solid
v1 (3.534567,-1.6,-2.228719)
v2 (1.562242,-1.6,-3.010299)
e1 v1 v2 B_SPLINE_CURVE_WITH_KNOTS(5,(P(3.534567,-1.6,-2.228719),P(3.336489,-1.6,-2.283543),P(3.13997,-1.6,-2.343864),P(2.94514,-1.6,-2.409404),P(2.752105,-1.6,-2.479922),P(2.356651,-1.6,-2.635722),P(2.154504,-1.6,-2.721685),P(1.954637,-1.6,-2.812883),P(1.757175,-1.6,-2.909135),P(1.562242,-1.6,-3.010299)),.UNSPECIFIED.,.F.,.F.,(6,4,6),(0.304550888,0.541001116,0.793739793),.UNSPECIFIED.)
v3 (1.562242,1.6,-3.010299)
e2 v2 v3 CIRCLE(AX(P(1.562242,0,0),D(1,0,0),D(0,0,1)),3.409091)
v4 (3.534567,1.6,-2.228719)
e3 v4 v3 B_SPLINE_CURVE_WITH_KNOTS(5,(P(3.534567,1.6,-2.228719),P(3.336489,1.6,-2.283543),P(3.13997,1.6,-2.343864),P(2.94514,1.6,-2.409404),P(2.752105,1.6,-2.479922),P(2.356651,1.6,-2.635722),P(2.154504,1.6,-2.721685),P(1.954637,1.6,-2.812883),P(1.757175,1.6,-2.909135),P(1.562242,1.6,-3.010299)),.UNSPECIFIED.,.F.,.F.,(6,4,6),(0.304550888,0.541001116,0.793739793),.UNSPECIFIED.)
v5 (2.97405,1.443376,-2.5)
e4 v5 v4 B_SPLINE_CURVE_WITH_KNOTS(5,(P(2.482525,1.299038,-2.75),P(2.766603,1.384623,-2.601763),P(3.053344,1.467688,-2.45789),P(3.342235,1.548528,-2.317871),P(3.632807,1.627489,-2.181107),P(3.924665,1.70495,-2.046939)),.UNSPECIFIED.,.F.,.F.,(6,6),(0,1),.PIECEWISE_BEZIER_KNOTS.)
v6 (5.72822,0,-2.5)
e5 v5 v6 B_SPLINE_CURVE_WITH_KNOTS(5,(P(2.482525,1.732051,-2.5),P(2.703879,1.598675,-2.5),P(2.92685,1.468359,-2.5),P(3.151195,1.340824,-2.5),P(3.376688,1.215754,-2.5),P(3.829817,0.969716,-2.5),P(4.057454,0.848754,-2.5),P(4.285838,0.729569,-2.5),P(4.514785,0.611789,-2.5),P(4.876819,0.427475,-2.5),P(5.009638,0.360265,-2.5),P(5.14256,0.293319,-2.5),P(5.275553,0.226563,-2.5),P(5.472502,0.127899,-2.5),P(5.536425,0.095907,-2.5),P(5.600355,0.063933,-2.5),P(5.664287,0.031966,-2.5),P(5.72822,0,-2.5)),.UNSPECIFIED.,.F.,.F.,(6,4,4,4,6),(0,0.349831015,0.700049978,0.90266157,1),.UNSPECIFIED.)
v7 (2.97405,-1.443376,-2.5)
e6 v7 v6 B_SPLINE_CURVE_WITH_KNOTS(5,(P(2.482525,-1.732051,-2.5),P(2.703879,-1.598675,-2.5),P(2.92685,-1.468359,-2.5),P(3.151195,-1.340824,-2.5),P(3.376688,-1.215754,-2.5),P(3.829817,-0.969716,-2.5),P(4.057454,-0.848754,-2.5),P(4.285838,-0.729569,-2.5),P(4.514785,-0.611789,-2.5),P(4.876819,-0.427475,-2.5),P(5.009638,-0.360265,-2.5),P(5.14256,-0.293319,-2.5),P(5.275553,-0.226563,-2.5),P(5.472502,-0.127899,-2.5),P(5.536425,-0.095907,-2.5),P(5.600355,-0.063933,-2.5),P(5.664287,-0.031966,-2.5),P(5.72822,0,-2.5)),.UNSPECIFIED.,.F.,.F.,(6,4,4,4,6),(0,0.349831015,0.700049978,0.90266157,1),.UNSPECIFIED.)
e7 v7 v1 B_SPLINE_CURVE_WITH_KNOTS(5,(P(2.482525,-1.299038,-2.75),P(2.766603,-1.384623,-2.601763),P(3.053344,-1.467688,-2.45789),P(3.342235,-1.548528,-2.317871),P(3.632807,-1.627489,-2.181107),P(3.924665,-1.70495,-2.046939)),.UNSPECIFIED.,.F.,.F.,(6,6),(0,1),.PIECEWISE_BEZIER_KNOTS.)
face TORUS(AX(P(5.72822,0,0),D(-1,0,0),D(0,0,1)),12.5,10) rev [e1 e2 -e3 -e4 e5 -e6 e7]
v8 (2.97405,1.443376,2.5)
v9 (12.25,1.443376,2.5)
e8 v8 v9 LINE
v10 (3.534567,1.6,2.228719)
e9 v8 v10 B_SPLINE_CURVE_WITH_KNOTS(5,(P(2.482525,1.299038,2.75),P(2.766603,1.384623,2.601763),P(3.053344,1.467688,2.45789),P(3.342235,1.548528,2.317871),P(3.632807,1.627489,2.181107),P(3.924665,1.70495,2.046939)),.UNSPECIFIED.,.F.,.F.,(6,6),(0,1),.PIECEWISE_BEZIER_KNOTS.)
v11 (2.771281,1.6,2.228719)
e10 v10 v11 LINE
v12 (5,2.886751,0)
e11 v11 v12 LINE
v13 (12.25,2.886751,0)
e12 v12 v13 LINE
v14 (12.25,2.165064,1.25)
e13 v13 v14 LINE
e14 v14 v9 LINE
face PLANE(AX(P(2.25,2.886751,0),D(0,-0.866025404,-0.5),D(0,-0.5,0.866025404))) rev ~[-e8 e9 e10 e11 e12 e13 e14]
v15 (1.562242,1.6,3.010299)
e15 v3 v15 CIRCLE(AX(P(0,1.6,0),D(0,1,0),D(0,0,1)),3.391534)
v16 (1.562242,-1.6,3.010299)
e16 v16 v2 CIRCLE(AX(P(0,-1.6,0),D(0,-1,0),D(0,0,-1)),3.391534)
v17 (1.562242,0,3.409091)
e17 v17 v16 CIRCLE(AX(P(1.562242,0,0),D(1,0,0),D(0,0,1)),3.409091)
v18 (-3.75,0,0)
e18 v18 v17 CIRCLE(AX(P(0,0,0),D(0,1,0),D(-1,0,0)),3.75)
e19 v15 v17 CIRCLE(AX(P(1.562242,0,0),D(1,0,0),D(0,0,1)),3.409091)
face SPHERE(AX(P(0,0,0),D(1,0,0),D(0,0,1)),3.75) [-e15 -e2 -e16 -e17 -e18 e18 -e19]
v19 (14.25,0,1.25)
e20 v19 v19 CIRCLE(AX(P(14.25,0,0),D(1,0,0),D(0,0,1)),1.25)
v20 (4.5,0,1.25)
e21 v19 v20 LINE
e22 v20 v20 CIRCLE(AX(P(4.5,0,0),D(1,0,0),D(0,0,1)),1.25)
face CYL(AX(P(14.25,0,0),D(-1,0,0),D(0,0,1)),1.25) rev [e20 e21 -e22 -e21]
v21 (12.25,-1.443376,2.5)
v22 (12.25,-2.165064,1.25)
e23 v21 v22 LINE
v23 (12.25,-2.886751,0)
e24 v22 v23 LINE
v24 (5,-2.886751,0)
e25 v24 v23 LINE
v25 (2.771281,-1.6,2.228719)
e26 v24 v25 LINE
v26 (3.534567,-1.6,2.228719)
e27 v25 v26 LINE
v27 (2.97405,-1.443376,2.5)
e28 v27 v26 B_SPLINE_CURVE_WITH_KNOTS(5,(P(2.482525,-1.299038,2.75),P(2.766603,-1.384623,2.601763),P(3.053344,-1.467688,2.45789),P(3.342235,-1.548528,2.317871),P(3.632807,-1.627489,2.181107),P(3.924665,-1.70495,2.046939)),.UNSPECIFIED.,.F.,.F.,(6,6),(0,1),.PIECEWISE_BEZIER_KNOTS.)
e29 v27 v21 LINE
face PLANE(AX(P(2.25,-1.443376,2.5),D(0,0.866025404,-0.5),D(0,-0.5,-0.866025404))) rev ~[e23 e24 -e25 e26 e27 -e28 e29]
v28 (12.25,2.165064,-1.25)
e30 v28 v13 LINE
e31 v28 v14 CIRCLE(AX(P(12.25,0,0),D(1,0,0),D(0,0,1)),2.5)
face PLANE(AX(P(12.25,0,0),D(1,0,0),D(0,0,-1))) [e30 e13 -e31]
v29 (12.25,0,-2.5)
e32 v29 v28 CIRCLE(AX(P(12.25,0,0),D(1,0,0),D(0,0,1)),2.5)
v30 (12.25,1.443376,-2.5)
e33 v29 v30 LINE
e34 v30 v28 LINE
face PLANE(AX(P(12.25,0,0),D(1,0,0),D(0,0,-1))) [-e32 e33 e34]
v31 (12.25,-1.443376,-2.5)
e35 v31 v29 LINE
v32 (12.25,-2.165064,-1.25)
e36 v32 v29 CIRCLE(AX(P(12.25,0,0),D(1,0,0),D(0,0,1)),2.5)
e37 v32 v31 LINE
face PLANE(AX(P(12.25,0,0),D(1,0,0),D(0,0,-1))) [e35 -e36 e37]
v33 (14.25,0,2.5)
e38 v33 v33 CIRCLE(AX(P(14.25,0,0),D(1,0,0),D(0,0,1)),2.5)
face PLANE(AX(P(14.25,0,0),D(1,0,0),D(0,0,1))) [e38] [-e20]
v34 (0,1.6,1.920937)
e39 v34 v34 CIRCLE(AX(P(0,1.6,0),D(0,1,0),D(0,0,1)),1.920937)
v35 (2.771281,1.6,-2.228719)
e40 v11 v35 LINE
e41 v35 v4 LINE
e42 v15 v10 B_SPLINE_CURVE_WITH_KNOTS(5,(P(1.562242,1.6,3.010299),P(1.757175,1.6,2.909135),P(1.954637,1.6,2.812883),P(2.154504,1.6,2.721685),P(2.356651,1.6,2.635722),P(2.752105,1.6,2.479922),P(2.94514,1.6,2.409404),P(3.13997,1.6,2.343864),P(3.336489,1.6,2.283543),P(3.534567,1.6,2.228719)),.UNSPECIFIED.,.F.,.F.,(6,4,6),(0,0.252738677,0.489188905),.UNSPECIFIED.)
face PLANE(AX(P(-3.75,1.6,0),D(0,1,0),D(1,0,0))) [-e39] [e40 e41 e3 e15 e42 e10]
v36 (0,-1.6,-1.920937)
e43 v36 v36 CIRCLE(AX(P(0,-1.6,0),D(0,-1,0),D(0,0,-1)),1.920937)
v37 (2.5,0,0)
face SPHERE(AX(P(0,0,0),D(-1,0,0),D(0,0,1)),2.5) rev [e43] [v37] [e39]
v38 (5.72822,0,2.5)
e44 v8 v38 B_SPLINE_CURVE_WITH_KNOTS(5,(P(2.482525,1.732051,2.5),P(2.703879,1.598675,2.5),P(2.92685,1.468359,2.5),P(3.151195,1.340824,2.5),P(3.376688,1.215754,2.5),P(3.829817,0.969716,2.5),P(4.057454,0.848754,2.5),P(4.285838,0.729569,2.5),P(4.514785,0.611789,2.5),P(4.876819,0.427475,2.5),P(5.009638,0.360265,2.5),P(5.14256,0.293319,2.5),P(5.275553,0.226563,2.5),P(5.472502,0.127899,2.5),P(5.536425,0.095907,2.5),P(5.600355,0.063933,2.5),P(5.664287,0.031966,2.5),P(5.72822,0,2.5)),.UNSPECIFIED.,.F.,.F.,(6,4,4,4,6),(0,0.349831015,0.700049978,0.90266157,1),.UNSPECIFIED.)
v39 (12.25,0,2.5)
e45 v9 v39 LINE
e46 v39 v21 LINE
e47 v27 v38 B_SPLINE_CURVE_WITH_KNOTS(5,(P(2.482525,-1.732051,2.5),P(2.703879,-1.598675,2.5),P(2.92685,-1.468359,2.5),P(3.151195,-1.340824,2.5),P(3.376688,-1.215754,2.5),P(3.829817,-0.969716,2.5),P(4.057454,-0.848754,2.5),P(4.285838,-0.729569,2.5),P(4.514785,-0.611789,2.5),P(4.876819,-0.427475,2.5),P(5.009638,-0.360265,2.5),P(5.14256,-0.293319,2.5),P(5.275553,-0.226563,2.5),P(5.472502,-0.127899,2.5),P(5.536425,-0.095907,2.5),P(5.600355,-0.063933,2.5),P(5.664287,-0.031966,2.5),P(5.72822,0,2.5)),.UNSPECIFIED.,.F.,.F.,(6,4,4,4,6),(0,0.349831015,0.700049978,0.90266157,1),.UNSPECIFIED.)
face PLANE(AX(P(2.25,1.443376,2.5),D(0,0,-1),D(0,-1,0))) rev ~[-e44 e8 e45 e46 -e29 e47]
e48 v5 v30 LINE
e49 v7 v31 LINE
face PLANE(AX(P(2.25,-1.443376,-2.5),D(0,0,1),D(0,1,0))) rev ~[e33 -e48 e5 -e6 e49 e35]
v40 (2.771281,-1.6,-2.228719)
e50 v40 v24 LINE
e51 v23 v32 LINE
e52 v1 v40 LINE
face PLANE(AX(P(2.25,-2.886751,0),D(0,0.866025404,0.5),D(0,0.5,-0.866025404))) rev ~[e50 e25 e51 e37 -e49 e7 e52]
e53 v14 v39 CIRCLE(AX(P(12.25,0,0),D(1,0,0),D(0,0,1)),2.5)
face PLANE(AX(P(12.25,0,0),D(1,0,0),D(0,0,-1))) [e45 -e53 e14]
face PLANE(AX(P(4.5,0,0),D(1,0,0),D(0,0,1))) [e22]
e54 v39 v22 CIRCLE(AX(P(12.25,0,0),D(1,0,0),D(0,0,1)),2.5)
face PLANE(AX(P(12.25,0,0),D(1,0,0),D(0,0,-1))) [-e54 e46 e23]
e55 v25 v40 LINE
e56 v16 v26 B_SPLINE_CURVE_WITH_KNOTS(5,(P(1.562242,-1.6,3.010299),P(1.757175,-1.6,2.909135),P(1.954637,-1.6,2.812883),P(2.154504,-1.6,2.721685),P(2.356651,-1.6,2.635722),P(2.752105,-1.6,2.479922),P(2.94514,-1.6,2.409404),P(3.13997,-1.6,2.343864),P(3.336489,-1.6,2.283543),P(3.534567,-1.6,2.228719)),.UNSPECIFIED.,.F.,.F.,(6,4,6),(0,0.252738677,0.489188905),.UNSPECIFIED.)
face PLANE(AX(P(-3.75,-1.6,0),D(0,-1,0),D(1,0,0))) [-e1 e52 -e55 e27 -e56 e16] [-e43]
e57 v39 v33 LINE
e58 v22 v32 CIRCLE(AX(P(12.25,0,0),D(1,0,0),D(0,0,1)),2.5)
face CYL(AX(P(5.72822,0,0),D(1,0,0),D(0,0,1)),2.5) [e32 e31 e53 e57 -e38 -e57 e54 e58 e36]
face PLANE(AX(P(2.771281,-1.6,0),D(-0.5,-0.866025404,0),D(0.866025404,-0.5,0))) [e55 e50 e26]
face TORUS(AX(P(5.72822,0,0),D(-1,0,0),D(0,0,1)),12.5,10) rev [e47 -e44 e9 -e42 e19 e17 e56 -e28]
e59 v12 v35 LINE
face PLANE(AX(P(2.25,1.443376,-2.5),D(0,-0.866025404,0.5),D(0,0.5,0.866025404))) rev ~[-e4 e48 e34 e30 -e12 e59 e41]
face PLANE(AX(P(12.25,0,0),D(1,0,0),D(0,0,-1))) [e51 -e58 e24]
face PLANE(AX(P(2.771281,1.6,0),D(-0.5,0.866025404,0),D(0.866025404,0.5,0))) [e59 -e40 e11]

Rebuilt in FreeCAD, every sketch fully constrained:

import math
import FreeCAD as App
import Part
import Sketcher
from FreeCAD import Vector
Q = App.Units.Quantity

doc = App.newDocument("Part")
body = doc.addObject("PartDesign::Body", "Body")

# Sketch on XY plane
sketch1 = body.newObject("Sketcher::SketchObject", "Sketch")
sketch1.AttachmentSupport = (doc.getObject("XY_Plane"), [""])
sketch1.MapMode = "FlatFace"
sketch1.addGeometry([
    Part.LineSegment(Vector(-3.75, 0, 0), Vector(-2.5, 0, 0)),  # 0
    Part.ArcOfCircle(Part.Circle(Vector(0, 0, 0), Vector(0, 0, 1), 2.5), math.radians(0), math.radians(180)),  # 1
    Part.LineSegment(Vector(2.5, 0, 0), Vector(4.5, 0, 0)),  # 2
    Part.LineSegment(Vector(4.5, 0, 0), Vector(4.5, 1.25, 0)),  # 3
    Part.LineSegment(Vector(4.5, 1.25, 0), Vector(14.25, 1.25, 0)),  # 4
    Part.LineSegment(Vector(14.25, 1.25, 0), Vector(14.25, 2.5, 0)),  # 5
    Part.LineSegment(Vector(14.25, 2.5, 0), Vector(5.72822, 2.5, 0)),  # 6
    Part.ArcOfCircle(Part.Circle(Vector(5.72822, 12.5, 0), Vector(0, 0, 1), 10), math.radians(-114.619977), math.radians(-90)),  # 7
    Part.ArcOfCircle(Part.Circle(Vector(0, 0, 0), Vector(0, 0, 1), 3.75), math.radians(65.380023), math.radians(180)),  # 8
], False)
sketch1.addConstraint([
    Sketcher.Constraint("Coincident", 0, 2, 1, 2),
    Sketcher.Constraint("Coincident", 1, 1, 2, 1),
    Sketcher.Constraint("Coincident", 2, 2, 3, 1),
    Sketcher.Constraint("Coincident", 3, 2, 4, 1),
    Sketcher.Constraint("Coincident", 4, 2, 5, 1),
    Sketcher.Constraint("Coincident", 5, 2, 6, 1),
    Sketcher.Constraint("Tangent", 6, 2, 7, 2),
    Sketcher.Constraint("Tangent", 7, 1, 8, 1),
    Sketcher.Constraint("Coincident", 8, 2, 0, 1),
    Sketcher.Constraint("Horizontal", 0),
    Sketcher.Constraint("Horizontal", 2),
    Sketcher.Constraint("Vertical", 3),
    Sketcher.Constraint("Horizontal", 4),
    Sketcher.Constraint("Vertical", 5),
    Sketcher.Constraint("Horizontal", 6),
    Sketcher.Constraint("Coincident", 1, 3, -1, 1),
    Sketcher.Constraint("Coincident", 8, 3, -1, 1),
    Sketcher.Constraint("PointOnObject", 0, 2, -1),
    Sketcher.Constraint("PointOnObject", 1, 1, -1),
    Sketcher.Constraint("Equal", 0, 3),
    Sketcher.Constraint("Equal", 3, 5),
    Sketcher.Constraint("Radius", 7, 10.0),
    Sketcher.Constraint("Radius", 1, 2.5),
    Sketcher.Constraint("DistanceX", 2, 1, 2, 2, 2.0),
    Sketcher.Constraint("Radius", 8, 3.75),
    Sketcher.Constraint("DistanceX", 4, 1, 4, 2, 9.75),
])
revolution = body.newObject("PartDesign::Revolution", "Revolution")
revolution.Profile = sketch1
revolution.ReferenceAxis = (sketch1, ["H_Axis"])
revolution.Angle = 360

# Sketch on XY plane
sketch2 = body.newObject("Sketcher::SketchObject", "Sketch001")
sketch2.AttachmentSupport = (doc.getObject("XY_Plane"), [""])
sketch2.MapMode = "FlatFace"
sketch2.addGeometry([
    Part.LineSegment(Vector(-3.75, 4, 0), Vector(-3.75, 1.6, 0)),  # 0
    Part.LineSegment(Vector(-3.75, 1.6, 0), Vector(6, 1.6, 0)),  # 1
    Part.LineSegment(Vector(6, 1.6, 0), Vector(6, 4, 0)),  # 2
    Part.LineSegment(Vector(6, 4, 0), Vector(-3.75, 4, 0)),  # 3
    Part.LineSegment(Vector(-3.75, -1.6, 0), Vector(-3.75, -4, 0)),  # 4
    Part.LineSegment(Vector(-3.75, -4, 0), Vector(6, -4, 0)),  # 5
    Part.LineSegment(Vector(6, -4, 0), Vector(6, -1.6, 0)),  # 6
    Part.LineSegment(Vector(6, -1.6, 0), Vector(-3.75, -1.6, 0)),  # 7
], False)
sketch2.addConstraint([
    Sketcher.Constraint("Coincident", 0, 2, 1, 1),
    Sketcher.Constraint("Coincident", 1, 2, 2, 1),
    Sketcher.Constraint("Coincident", 2, 2, 3, 1),
    Sketcher.Constraint("Coincident", 3, 2, 0, 1),
    Sketcher.Constraint("Coincident", 4, 2, 5, 1),
    Sketcher.Constraint("Coincident", 5, 2, 6, 1),
    Sketcher.Constraint("Coincident", 6, 2, 7, 1),
    Sketcher.Constraint("Coincident", 7, 2, 4, 1),
    Sketcher.Constraint("Vertical", 0),
    Sketcher.Constraint("Horizontal", 1),
    Sketcher.Constraint("Vertical", 2),
    Sketcher.Constraint("Horizontal", 3),
    Sketcher.Constraint("Vertical", 4),
    Sketcher.Constraint("Horizontal", 5),
    Sketcher.Constraint("Vertical", 6),
    Sketcher.Constraint("Horizontal", 7),
    Sketcher.Constraint("Symmetric", 3, 2, 4, 2, -1),
    Sketcher.Constraint("Symmetric", 1, 2, 6, 2, -1),
    Sketcher.Constraint("DistanceY", 0, 2, 0, 1, 2.4),
    Sketcher.Constraint("DistanceX", -1, 1, 1, 2, 6.0),
    Sketcher.Constraint("DistanceY", -1, 1, 2, 2, 4.0),
    Sketcher.Constraint("DistanceX", 1, 1, 1, 2, 9.75),
])
pocket1 = body.newObject("PartDesign::Pocket", "Pocket")
pocket1.Profile = sketch2
pocket1.Length = 10
pocket1.Midplane = True

# Sketch on YZ plane
sketch3 = body.newObject("Sketcher::SketchObject", "Sketch002")
sketch3.AttachmentSupport = (doc.getObject("YZ_Plane"), [""])
sketch3.MapMode = "FlatFace"
sketch3.AttachmentOffset = App.Placement(Vector(0, 0, 2.25), App.Rotation())
sketch3.addGeometry([
    Part.LineSegment(Vector(2.886751, 0, 0), Vector(1.443376, 2.5, 0)),  # 0
    Part.LineSegment(Vector(1.443376, 2.5, 0), Vector(-1.443376, 2.5, 0)),  # 1
    Part.LineSegment(Vector(-1.443376, 2.5, 0), Vector(-2.886751, 0, 0)),  # 2
    Part.LineSegment(Vector(-2.886751, 0, 0), Vector(-1.443376, -2.5, 0)),  # 3
    Part.LineSegment(Vector(-1.443376, -2.5, 0), Vector(1.443376, -2.5, 0)),  # 4
    Part.LineSegment(Vector(1.443376, -2.5, 0), Vector(2.886751, 0, 0)),  # 5
    Part.Circle(Vector(0, 0, 0), Vector(0, 0, 1), 1.25),  # 6
], False)
sketch3.addConstraint([
    Sketcher.Constraint("Coincident", 0, 2, 1, 1),
    Sketcher.Constraint("Coincident", 1, 2, 2, 1),
    Sketcher.Constraint("Coincident", 2, 2, 3, 1),
    Sketcher.Constraint("Coincident", 3, 2, 4, 1),
    Sketcher.Constraint("Coincident", 4, 2, 5, 1),
    Sketcher.Constraint("Coincident", 5, 2, 0, 1),
    Sketcher.Constraint("Horizontal", 1),
    Sketcher.Constraint("Horizontal", 4),
    Sketcher.Constraint("Coincident", 6, 3, -1, 1),
    Sketcher.Constraint("Symmetric", 0, 2, 3, 2, -1, 1),
    Sketcher.Constraint("Symmetric", 2, 2, 5, 2, -1, 1),
    Sketcher.Constraint("PointOnObject", 2, 2, -1),
    Sketcher.Constraint("Parallel", 2, 5),
    Sketcher.Constraint("Vertical", 1, 2, 3, 2),
    Sketcher.Constraint("Diameter", 6, 2.5),
    Sketcher.Constraint("Angle", 0, Q("120 deg")),
    Sketcher.Constraint("DistanceY", 3, 2, 1, 2, 5.0),
    Sketcher.Constraint("DistanceX", 1, 2, 1, 1, 2.886751),
])
pad1 = body.newObject("PartDesign::Pad", "Pad")
pad1.Profile = sketch3
pad1.Length = 10

# Sketch on XY plane
sketch4 = body.newObject("Sketcher::SketchObject", "Sketch003")
sketch4.AttachmentSupport = (doc.getObject("XY_Plane"), [""])
sketch4.MapMode = "FlatFace"
sketch4.addGeometry([
    Part.LineSegment(Vector(2.771281, 1.6, 0), Vector(5, 2.886751, 0)),  # 0
    Part.LineSegment(Vector(5, 2.886751, 0), Vector(-3.75, 2.886751, 0)),  # 1
    Part.LineSegment(Vector(-3.75, 2.886751, 0), Vector(-3.75, 1.6, 0)),  # 2
    Part.LineSegment(Vector(-3.75, 1.6, 0), Vector(2.771281, 1.6, 0)),  # 3
    Part.LineSegment(Vector(2.771281, -1.6, 0), Vector(-3.75, -1.6, 0)),  # 4
    Part.LineSegment(Vector(-3.75, -1.6, 0), Vector(-3.75, -2.886751, 0)),  # 5
    Part.LineSegment(Vector(-3.75, -2.886751, 0), Vector(5, -2.886751, 0)),  # 6
    Part.LineSegment(Vector(5, -2.886751, 0), Vector(2.771281, -1.6, 0)),  # 7
], False)
sketch4.addConstraint([
    Sketcher.Constraint("Coincident", 0, 2, 1, 1),
    Sketcher.Constraint("Coincident", 1, 2, 2, 1),
    Sketcher.Constraint("Coincident", 2, 2, 3, 1),
    Sketcher.Constraint("Coincident", 3, 2, 0, 1),
    Sketcher.Constraint("Coincident", 4, 2, 5, 1),
    Sketcher.Constraint("Coincident", 5, 2, 6, 1),
    Sketcher.Constraint("Coincident", 6, 2, 7, 1),
    Sketcher.Constraint("Coincident", 7, 2, 4, 1),
    Sketcher.Constraint("Horizontal", 1),
    Sketcher.Constraint("Vertical", 2),
    Sketcher.Constraint("Horizontal", 3),
    Sketcher.Constraint("Horizontal", 4),
    Sketcher.Constraint("Vertical", 5),
    Sketcher.Constraint("Horizontal", 6),
    Sketcher.Constraint("Symmetric", 2, 2, 4, 2, -1),
    Sketcher.Constraint("Symmetric", 0, 2, 6, 2, -1),
    Sketcher.Constraint("Vertical", 3, 2, 7, 2),
    Sketcher.Constraint("Angle", 0, Q("30 deg")),
    Sketcher.Constraint("DistanceX", -1, 1, 0, 2, 5.0),
    Sketcher.Constraint("DistanceX", 1, 2, 1, 1, 8.75),
    Sketcher.Constraint("DistanceY", -1, 1, 2, 2, 1.6),
    Sketcher.Constraint("DistanceX", 3, 1, 3, 2, 6.521281),
])
pocket2 = body.newObject("PartDesign::Pocket", "Pocket001")
pocket2.Profile = sketch4
pocket2.Length = 10
pocket2.Midplane = True

doc.recompute()
